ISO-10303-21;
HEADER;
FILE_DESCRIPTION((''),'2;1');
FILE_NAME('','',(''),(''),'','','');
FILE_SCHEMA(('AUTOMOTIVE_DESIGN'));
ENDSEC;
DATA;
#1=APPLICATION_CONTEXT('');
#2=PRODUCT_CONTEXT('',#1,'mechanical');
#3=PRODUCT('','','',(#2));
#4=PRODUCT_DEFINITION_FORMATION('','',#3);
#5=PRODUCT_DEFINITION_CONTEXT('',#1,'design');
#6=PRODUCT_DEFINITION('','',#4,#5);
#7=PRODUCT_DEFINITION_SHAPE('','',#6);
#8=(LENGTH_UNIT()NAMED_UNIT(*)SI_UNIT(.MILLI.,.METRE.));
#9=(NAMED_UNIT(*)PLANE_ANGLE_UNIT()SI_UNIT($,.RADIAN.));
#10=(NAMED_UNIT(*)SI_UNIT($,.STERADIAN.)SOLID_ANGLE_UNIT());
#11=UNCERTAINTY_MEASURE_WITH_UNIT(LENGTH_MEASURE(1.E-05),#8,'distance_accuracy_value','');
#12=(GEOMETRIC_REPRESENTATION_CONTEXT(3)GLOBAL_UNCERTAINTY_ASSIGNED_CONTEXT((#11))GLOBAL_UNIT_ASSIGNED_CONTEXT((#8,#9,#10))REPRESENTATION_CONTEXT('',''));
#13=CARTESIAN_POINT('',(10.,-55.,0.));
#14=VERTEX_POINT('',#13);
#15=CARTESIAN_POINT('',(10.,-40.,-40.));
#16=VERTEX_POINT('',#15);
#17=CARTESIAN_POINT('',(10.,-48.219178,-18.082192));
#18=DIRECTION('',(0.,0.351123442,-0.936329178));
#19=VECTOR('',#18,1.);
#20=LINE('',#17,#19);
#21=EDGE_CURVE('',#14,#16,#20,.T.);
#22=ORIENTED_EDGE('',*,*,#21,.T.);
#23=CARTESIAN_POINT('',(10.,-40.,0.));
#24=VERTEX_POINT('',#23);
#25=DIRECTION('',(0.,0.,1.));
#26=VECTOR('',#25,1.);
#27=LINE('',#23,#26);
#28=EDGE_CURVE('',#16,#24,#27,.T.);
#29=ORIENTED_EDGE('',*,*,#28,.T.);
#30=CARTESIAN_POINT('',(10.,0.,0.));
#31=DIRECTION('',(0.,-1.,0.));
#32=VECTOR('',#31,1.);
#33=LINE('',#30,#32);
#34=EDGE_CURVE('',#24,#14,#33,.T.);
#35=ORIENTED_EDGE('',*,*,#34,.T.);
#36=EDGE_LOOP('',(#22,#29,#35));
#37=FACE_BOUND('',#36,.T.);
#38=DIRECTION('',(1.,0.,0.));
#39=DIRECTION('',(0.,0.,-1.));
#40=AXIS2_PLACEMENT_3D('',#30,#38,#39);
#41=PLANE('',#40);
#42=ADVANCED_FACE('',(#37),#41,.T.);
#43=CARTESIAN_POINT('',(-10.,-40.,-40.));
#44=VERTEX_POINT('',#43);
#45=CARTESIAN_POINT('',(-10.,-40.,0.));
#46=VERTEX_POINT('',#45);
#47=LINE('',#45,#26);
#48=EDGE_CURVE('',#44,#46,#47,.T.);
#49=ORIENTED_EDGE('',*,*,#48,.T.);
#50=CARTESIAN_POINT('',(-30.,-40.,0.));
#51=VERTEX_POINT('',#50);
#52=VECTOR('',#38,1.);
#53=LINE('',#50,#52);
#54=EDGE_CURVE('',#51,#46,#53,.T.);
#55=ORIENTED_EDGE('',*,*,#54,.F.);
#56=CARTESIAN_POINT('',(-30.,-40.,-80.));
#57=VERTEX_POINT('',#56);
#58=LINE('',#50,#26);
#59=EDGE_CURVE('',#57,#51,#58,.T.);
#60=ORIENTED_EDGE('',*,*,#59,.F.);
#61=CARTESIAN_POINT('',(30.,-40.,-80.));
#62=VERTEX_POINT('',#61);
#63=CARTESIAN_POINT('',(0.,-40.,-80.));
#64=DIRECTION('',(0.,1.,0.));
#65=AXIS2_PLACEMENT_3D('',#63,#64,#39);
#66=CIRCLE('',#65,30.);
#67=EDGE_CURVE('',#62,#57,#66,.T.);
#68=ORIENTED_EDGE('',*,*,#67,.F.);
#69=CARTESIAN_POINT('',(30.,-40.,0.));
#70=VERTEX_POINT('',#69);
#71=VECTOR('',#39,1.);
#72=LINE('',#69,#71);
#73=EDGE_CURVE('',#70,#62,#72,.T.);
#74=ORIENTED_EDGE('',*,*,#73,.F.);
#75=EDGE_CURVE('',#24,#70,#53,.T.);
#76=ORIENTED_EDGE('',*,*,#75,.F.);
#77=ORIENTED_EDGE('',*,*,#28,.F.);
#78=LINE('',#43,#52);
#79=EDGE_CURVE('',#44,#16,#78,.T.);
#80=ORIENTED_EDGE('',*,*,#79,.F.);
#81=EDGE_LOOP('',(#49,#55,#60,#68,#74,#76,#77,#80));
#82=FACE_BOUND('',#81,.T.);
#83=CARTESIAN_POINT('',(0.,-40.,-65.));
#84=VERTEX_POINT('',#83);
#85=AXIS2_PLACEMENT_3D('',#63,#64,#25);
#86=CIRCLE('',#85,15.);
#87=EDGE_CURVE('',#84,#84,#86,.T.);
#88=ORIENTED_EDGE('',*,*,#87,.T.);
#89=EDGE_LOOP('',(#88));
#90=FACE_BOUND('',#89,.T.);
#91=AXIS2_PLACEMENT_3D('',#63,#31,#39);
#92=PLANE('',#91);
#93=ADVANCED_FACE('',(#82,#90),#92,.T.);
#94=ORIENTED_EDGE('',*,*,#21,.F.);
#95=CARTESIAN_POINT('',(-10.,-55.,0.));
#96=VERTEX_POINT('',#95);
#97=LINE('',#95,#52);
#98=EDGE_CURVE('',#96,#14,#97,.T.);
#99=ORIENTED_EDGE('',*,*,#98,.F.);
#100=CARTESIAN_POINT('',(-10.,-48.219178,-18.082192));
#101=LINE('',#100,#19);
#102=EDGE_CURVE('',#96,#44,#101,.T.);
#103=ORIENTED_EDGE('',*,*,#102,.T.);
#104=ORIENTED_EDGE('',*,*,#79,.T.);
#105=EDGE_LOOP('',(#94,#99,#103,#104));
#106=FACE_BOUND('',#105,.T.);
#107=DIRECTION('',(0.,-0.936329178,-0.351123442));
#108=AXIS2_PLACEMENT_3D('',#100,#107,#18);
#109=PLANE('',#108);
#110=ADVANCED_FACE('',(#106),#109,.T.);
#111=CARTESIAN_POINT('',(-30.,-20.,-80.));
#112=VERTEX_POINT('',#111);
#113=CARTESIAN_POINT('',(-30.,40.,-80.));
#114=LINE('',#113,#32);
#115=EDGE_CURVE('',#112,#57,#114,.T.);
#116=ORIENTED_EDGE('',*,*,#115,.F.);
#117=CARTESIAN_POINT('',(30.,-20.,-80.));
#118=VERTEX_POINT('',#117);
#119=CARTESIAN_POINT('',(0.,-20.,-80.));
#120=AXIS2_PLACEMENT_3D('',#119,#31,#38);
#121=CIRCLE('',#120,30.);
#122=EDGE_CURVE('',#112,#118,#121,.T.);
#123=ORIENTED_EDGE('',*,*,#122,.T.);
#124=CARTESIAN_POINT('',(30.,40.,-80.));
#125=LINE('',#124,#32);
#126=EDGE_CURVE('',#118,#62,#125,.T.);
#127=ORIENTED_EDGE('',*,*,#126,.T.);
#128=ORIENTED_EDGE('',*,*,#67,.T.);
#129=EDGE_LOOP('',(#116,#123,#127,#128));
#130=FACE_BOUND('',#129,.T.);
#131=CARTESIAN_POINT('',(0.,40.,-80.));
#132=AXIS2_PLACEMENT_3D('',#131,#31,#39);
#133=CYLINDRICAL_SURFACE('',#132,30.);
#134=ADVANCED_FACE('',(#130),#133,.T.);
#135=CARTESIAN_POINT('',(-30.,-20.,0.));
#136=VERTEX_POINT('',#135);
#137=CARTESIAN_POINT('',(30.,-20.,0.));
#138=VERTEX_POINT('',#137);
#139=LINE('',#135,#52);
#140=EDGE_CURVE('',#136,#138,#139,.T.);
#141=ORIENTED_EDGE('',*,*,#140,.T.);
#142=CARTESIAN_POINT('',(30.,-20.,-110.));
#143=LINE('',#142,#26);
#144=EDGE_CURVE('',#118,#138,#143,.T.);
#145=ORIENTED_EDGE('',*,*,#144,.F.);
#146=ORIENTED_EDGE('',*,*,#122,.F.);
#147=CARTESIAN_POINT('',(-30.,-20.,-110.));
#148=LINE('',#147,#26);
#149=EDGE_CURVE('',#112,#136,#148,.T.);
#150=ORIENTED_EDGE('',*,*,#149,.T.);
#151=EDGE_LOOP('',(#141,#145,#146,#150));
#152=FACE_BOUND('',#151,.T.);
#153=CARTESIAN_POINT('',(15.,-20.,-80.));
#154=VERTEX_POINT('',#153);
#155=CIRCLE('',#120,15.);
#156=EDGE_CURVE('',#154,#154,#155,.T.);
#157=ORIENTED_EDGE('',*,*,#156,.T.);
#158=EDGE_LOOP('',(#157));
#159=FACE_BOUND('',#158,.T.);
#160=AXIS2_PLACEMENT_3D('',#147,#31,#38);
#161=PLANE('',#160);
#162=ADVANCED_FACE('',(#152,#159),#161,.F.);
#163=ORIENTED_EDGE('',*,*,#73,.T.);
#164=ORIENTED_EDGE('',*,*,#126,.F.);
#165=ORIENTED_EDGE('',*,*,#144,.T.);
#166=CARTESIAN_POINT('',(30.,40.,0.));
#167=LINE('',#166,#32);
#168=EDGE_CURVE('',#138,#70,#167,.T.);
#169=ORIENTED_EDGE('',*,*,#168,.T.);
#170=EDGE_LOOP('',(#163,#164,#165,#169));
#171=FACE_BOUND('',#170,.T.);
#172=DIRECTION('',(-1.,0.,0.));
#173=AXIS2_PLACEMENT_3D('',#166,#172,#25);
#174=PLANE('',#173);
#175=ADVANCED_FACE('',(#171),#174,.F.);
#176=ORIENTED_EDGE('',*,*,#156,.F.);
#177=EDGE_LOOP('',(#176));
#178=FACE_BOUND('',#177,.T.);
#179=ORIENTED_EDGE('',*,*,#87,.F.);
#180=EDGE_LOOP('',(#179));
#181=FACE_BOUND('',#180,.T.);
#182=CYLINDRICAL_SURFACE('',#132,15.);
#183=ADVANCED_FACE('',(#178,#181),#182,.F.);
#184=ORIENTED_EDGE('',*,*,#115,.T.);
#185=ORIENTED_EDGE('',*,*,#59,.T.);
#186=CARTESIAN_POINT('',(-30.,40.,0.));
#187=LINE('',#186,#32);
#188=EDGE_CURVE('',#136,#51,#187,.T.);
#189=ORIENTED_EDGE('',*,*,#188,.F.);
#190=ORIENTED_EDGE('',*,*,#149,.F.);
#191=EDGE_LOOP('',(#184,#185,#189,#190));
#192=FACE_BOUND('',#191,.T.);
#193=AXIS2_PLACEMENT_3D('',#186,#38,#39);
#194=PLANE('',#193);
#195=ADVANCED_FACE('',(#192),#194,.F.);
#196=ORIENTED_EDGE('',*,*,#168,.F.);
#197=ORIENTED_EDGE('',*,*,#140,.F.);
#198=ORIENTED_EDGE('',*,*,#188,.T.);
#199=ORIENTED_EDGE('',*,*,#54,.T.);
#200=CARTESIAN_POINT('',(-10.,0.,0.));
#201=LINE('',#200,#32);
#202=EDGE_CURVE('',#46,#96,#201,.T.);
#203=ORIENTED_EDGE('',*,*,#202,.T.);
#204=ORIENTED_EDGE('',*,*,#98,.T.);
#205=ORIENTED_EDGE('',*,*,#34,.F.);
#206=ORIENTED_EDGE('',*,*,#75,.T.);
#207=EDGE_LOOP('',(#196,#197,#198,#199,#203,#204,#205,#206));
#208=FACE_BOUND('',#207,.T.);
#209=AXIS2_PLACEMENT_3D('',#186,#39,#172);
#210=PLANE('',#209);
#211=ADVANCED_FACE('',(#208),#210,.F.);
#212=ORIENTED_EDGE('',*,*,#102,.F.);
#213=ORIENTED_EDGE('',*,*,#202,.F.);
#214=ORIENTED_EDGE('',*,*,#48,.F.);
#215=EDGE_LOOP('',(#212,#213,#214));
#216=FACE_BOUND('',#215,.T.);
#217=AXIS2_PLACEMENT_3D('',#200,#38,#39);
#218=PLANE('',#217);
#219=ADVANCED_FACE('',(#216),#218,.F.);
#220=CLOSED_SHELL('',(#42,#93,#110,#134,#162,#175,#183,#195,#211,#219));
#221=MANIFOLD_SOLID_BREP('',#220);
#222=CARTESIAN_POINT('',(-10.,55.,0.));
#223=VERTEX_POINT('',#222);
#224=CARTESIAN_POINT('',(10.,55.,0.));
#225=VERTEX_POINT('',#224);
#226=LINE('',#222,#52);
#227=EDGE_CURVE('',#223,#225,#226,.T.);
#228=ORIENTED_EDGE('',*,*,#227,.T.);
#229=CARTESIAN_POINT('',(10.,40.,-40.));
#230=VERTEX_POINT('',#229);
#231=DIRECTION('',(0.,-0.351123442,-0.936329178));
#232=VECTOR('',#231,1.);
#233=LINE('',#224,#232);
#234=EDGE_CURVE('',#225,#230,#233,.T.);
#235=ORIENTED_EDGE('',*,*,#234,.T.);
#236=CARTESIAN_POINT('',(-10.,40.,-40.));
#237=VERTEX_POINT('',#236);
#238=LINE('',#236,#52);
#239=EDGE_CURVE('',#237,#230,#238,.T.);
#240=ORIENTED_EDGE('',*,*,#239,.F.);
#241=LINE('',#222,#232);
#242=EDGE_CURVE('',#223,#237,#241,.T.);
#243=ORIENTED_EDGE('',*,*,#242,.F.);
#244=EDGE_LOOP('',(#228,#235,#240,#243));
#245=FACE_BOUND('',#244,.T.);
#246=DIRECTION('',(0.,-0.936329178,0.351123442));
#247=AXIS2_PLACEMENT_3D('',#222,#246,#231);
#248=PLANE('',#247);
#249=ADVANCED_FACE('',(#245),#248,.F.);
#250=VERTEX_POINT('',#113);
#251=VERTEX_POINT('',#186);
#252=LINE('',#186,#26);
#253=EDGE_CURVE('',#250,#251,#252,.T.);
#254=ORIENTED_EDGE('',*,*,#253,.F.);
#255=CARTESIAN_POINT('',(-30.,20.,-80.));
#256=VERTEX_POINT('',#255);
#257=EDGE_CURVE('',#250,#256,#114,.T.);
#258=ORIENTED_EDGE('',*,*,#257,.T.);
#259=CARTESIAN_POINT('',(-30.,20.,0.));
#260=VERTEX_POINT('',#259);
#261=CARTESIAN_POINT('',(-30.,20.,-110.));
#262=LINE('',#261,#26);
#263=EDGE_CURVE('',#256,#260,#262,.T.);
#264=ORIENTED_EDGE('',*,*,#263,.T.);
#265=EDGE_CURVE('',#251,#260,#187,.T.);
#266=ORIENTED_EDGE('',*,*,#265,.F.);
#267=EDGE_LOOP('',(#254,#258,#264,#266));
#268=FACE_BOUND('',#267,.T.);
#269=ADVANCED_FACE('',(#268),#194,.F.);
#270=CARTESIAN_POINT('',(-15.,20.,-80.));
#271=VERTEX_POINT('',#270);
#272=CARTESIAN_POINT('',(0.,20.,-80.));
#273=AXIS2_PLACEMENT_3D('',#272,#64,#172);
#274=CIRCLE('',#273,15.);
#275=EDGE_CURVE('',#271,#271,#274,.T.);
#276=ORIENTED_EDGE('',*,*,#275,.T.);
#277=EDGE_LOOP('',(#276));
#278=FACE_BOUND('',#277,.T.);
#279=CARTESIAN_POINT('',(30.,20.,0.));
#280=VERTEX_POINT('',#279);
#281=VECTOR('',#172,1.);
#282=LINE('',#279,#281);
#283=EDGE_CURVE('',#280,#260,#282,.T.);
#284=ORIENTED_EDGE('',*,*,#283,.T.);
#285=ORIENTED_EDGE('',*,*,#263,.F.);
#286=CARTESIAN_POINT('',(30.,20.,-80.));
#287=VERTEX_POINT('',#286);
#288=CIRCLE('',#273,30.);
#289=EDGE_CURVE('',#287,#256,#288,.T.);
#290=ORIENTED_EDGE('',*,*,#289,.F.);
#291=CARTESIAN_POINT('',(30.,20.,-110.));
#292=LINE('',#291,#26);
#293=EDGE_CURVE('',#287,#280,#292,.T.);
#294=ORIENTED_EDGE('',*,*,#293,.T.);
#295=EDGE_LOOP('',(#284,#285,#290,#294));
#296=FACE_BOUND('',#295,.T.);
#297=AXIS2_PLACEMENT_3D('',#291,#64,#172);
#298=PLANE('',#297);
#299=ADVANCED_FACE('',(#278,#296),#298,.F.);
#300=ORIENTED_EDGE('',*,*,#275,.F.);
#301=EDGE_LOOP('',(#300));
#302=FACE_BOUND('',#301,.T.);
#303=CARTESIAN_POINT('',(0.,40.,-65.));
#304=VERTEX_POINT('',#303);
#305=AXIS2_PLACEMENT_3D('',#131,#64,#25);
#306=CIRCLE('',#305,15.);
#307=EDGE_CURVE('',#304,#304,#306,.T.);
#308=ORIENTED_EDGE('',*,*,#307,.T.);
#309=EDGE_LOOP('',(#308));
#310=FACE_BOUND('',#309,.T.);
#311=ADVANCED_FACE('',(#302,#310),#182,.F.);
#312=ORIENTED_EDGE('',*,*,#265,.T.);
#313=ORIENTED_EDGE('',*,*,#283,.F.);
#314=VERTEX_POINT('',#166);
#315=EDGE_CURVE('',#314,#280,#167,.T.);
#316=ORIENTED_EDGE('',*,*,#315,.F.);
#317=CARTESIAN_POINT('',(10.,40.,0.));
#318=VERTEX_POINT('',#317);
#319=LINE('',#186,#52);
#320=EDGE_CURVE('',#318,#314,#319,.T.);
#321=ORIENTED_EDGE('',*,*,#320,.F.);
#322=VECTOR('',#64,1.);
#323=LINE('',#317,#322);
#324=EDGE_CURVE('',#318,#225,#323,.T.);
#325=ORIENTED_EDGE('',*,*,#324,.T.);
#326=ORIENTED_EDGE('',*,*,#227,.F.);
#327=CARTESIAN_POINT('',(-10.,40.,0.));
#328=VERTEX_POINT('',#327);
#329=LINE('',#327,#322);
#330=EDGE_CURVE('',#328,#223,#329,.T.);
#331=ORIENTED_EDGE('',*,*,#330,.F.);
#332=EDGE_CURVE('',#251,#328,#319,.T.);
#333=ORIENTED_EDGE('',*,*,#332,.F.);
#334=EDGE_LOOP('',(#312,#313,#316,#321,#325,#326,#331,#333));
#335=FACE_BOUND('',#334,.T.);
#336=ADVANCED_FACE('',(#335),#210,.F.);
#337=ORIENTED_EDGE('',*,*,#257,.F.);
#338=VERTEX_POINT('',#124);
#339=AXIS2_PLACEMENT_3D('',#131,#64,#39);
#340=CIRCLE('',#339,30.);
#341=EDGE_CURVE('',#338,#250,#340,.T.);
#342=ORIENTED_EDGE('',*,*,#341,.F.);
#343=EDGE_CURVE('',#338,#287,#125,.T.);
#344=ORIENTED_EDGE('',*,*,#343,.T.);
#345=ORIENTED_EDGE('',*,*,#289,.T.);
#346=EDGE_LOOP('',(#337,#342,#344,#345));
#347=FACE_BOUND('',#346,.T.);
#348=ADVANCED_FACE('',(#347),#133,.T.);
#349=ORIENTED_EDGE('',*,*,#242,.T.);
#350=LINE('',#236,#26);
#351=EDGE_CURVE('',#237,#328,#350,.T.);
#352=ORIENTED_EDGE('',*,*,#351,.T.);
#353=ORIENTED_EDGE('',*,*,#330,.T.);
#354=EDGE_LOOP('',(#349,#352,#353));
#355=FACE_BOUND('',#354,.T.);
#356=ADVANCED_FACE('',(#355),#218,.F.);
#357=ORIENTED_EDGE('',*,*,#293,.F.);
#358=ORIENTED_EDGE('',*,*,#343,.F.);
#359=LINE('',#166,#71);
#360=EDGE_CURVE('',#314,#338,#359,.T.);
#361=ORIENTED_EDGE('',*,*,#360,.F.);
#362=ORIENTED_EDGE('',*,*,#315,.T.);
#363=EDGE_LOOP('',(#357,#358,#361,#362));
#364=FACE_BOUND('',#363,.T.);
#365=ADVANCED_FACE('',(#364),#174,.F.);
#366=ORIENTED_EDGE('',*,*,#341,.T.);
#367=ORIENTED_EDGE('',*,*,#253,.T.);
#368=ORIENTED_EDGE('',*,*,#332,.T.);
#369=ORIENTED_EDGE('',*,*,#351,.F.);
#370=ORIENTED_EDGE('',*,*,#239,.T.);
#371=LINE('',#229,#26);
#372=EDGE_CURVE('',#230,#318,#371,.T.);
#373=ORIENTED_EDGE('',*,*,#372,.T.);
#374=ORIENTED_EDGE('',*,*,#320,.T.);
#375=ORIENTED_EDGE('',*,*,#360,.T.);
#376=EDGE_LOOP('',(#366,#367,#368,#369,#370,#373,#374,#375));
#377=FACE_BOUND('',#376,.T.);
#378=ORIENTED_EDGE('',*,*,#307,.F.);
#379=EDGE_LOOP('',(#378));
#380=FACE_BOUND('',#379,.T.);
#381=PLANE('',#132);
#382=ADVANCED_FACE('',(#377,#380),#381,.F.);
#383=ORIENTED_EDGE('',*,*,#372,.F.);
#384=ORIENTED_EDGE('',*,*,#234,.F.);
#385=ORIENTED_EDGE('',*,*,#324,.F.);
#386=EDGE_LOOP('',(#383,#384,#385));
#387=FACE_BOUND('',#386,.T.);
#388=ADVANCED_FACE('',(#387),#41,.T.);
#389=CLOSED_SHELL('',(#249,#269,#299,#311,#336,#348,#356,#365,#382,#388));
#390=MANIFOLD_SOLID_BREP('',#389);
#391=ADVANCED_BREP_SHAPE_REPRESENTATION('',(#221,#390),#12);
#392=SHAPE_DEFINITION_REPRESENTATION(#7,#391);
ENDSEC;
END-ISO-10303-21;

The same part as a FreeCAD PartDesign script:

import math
import FreeCAD as App
import Part
import Sketcher

doc = App.newDocument("Part")
params = doc.addObject("Spreadsheet::Sheet", "Params")
for row, (alias, value) in enumerate([
    ("sketch1_diameter", "30 mm"),
    ("sketch1_radius", "30 mm"),
    ("sketch1_height", "80 mm"),
    ("pad1_length", "80 mm"),
    ("sketch2_width", "60 mm"),
    ("sketch2_height", "40 mm"),
    ("pocket1_length", "110 mm"),
    ("sketch3_width", "15 mm"),
    ("sketch3_height", "40 mm"),
    ("pad2_length", "20 mm"),
], start=1):
    params.set(f"A{row}", alias)
    params.set(f"B{row}", "=" + value)
    params.setAlias(f"B{row}", alias)

body = doc.addObject("PartDesign::Body", "Body")
body.AllowCompound = True

sketch1 = body.newObject("Sketcher::SketchObject", "Sketch")
sketch1.AttachmentSupport = (doc.getObject("XZ_Plane"), [""])
sketch1.MapMode = "FlatFace"
sketch1.addGeometry([
    Part.LineSegment(App.Vector(-30, -80, 0), App.Vector(-30, 0, 0)),
    Part.LineSegment(App.Vector(-30, 0, 0), App.Vector(30, 0, 0)),
    Part.LineSegment(App.Vector(30, 0, 0), App.Vector(30, -80, 0)),
    Part.ArcOfCircle(Part.Circle(App.Vector(0, -80, 0), App.Vector(0, 0, 1), 30), math.radians(180), math.radians(360)),
    Part.Circle(App.Vector(0, -80, 0), App.Vector(0, 0, 1), 15),
], False)
sketch1.addConstraint([
    Sketcher.Constraint("Coincident", 0, 2, 1, 1),
    Sketcher.Constraint("Coincident", 1, 2, 2, 1),
    Sketcher.Constraint("Tangent", 2, 2, 3, 2),
    Sketcher.Constraint("Tangent", 3, 1, 0, 1),
    Sketcher.Constraint("Vertical", 0),
    Sketcher.Constraint("Horizontal", 1),
    Sketcher.Constraint("Vertical", 2),
    Sketcher.Constraint("Coincident", 4, 3, 3, 3),
    Sketcher.Constraint("Symmetric", 0, 2, 1, 2, -1, 1),
    Sketcher.Constraint("Diameter", 4, 30.0),
    Sketcher.Constraint("Radius", 3, 30.0),
    Sketcher.Constraint("DistanceY", 0, 1, 0, 2, 80.0),
])
sketch1.setExpression("Constraints[9]", "Params.sketch1_diameter")
sketch1.setExpression("Constraints[10]", "Params.sketch1_radius")
sketch1.setExpression("Constraints[11]", "Params.sketch1_height")
pad1 = body.newObject("PartDesign::Pad", "Pad")
pad1.Profile = sketch1
pad1.setExpression("Length", "Params.pad1_length")
pad1.Midplane = True

sketch2 = body.newObject("Sketcher::SketchObject", "Sketch001")
sketch2.AttachmentSupport = (doc.getObject("XY_Plane"), [""])
sketch2.MapMode = "FlatFace"
sketch2.addGeometry([
    Part.LineSegment(App.Vector(-30, 20, 0), App.Vector(-30, -20, 0)),
    Part.LineSegment(App.Vector(-30, -20, 0), App.Vector(30, -20, 0)),
    Part.LineSegment(App.Vector(30, -20, 0), App.Vector(30, 20, 0)),
    Part.LineSegment(App.Vector(30, 20, 0), App.Vector(-30, 20, 0)),
], False)
sketch2.addConstraint([
    Sketcher.Constraint("Coincident", 0, 2, 1, 1),
    Sketcher.Constraint("Coincident", 1, 2, 2, 1),
    Sketcher.Constraint("Coincident", 2, 2, 3, 1),
    Sketcher.Constraint("Coincident", 3, 2, 0, 1),
    Sketcher.Constraint("Vertical", 0),
    Sketcher.Constraint("Horizontal", 1),
    Sketcher.Constraint("Vertical", 2),
    Sketcher.Constraint("Horizontal", 3),
    Sketcher.Constraint("Symmetric", 0, 2, 2, 2, -1, 1),
    Sketcher.Constraint("DistanceX", 1, 1, 1, 2, 60.0),
    Sketcher.Constraint("DistanceY", 0, 2, 0, 1, 40.0),
])
sketch2.setExpression("Constraints[9]", "Params.sketch2_width")
sketch2.setExpression("Constraints[10]", "Params.sketch2_height")
pocket1 = body.newObject("PartDesign::Pocket", "Pocket")
pocket1.Profile = sketch2
pocket1.setExpression("Length", "Params.pocket1_length")

sketch3 = body.newObject("Sketcher::SketchObject", "Sketch002")
sketch3.AttachmentSupport = (doc.getObject("YZ_Plane"), [""])
sketch3.MapMode = "FlatFace"
sketch3.addGeometry([
    Part.LineSegment(App.Vector(-55, 0, 0), App.Vector(-40, -40, 0)),
    Part.LineSegment(App.Vector(-40, -40, 0), App.Vector(-40, 0, 0)),
    Part.LineSegment(App.Vector(-40, 0, 0), App.Vector(-55, 0, 0)),
    Part.LineSegment(App.Vector(40, -40, 0), App.Vector(55, 0, 0)),
    Part.LineSegment(App.Vector(55, 0, 0), App.Vector(40, 0, 0)),
    Part.LineSegment(App.Vector(40, 0, 0), App.Vector(40, -40, 0)),
], False)
sketch3.addConstraint([
    Sketcher.Constraint("Coincident", 0, 2, 1, 1),
    Sketcher.Constraint("Coincident", 1, 2, 2, 1),
    Sketcher.Constraint("Coincident", 2, 2, 0, 1),
    Sketcher.Constraint("Coincident", 3, 2, 4, 1),
    Sketcher.Constraint("Coincident", 4, 2, 5, 1),
    Sketcher.Constraint("Coincident", 5, 2, 3, 1),
    Sketcher.Constraint("Vertical", 1),
    Sketcher.Constraint("Horizontal", 2),
    Sketcher.Constraint("Horizontal", 4),
    Sketcher.Constraint("Vertical", 5),
    Sketcher.Constraint("Symmetric", 2, 2, 3, 2, -1, 1),
    Sketcher.Constraint("Symmetric", 1, 2, 4, 2, -2),
    Sketcher.Constraint("Horizontal", 0, 2, 5, 2),
    Sketcher.Constraint("DistanceX", 2, 2, 2, 1, 15.0),
    Sketcher.Constraint("DistanceY", 1, 1, 1, 2, 40.0),
    Sketcher.Constraint("DistanceX", 0, 2, -1, 1, 40.0),
])
sketch3.setExpression("Constraints[13]", "Params.sketch3_width")
sketch3.setExpression("Constraints[14]", "Params.sketch3_height")
pad2 = body.newObject("PartDesign::Pad", "Pad001")
pad2.Profile = sketch3
pad2.setExpression("Length", "Params.pad2_length")
pad2.Midplane = True

doc.recompute()
